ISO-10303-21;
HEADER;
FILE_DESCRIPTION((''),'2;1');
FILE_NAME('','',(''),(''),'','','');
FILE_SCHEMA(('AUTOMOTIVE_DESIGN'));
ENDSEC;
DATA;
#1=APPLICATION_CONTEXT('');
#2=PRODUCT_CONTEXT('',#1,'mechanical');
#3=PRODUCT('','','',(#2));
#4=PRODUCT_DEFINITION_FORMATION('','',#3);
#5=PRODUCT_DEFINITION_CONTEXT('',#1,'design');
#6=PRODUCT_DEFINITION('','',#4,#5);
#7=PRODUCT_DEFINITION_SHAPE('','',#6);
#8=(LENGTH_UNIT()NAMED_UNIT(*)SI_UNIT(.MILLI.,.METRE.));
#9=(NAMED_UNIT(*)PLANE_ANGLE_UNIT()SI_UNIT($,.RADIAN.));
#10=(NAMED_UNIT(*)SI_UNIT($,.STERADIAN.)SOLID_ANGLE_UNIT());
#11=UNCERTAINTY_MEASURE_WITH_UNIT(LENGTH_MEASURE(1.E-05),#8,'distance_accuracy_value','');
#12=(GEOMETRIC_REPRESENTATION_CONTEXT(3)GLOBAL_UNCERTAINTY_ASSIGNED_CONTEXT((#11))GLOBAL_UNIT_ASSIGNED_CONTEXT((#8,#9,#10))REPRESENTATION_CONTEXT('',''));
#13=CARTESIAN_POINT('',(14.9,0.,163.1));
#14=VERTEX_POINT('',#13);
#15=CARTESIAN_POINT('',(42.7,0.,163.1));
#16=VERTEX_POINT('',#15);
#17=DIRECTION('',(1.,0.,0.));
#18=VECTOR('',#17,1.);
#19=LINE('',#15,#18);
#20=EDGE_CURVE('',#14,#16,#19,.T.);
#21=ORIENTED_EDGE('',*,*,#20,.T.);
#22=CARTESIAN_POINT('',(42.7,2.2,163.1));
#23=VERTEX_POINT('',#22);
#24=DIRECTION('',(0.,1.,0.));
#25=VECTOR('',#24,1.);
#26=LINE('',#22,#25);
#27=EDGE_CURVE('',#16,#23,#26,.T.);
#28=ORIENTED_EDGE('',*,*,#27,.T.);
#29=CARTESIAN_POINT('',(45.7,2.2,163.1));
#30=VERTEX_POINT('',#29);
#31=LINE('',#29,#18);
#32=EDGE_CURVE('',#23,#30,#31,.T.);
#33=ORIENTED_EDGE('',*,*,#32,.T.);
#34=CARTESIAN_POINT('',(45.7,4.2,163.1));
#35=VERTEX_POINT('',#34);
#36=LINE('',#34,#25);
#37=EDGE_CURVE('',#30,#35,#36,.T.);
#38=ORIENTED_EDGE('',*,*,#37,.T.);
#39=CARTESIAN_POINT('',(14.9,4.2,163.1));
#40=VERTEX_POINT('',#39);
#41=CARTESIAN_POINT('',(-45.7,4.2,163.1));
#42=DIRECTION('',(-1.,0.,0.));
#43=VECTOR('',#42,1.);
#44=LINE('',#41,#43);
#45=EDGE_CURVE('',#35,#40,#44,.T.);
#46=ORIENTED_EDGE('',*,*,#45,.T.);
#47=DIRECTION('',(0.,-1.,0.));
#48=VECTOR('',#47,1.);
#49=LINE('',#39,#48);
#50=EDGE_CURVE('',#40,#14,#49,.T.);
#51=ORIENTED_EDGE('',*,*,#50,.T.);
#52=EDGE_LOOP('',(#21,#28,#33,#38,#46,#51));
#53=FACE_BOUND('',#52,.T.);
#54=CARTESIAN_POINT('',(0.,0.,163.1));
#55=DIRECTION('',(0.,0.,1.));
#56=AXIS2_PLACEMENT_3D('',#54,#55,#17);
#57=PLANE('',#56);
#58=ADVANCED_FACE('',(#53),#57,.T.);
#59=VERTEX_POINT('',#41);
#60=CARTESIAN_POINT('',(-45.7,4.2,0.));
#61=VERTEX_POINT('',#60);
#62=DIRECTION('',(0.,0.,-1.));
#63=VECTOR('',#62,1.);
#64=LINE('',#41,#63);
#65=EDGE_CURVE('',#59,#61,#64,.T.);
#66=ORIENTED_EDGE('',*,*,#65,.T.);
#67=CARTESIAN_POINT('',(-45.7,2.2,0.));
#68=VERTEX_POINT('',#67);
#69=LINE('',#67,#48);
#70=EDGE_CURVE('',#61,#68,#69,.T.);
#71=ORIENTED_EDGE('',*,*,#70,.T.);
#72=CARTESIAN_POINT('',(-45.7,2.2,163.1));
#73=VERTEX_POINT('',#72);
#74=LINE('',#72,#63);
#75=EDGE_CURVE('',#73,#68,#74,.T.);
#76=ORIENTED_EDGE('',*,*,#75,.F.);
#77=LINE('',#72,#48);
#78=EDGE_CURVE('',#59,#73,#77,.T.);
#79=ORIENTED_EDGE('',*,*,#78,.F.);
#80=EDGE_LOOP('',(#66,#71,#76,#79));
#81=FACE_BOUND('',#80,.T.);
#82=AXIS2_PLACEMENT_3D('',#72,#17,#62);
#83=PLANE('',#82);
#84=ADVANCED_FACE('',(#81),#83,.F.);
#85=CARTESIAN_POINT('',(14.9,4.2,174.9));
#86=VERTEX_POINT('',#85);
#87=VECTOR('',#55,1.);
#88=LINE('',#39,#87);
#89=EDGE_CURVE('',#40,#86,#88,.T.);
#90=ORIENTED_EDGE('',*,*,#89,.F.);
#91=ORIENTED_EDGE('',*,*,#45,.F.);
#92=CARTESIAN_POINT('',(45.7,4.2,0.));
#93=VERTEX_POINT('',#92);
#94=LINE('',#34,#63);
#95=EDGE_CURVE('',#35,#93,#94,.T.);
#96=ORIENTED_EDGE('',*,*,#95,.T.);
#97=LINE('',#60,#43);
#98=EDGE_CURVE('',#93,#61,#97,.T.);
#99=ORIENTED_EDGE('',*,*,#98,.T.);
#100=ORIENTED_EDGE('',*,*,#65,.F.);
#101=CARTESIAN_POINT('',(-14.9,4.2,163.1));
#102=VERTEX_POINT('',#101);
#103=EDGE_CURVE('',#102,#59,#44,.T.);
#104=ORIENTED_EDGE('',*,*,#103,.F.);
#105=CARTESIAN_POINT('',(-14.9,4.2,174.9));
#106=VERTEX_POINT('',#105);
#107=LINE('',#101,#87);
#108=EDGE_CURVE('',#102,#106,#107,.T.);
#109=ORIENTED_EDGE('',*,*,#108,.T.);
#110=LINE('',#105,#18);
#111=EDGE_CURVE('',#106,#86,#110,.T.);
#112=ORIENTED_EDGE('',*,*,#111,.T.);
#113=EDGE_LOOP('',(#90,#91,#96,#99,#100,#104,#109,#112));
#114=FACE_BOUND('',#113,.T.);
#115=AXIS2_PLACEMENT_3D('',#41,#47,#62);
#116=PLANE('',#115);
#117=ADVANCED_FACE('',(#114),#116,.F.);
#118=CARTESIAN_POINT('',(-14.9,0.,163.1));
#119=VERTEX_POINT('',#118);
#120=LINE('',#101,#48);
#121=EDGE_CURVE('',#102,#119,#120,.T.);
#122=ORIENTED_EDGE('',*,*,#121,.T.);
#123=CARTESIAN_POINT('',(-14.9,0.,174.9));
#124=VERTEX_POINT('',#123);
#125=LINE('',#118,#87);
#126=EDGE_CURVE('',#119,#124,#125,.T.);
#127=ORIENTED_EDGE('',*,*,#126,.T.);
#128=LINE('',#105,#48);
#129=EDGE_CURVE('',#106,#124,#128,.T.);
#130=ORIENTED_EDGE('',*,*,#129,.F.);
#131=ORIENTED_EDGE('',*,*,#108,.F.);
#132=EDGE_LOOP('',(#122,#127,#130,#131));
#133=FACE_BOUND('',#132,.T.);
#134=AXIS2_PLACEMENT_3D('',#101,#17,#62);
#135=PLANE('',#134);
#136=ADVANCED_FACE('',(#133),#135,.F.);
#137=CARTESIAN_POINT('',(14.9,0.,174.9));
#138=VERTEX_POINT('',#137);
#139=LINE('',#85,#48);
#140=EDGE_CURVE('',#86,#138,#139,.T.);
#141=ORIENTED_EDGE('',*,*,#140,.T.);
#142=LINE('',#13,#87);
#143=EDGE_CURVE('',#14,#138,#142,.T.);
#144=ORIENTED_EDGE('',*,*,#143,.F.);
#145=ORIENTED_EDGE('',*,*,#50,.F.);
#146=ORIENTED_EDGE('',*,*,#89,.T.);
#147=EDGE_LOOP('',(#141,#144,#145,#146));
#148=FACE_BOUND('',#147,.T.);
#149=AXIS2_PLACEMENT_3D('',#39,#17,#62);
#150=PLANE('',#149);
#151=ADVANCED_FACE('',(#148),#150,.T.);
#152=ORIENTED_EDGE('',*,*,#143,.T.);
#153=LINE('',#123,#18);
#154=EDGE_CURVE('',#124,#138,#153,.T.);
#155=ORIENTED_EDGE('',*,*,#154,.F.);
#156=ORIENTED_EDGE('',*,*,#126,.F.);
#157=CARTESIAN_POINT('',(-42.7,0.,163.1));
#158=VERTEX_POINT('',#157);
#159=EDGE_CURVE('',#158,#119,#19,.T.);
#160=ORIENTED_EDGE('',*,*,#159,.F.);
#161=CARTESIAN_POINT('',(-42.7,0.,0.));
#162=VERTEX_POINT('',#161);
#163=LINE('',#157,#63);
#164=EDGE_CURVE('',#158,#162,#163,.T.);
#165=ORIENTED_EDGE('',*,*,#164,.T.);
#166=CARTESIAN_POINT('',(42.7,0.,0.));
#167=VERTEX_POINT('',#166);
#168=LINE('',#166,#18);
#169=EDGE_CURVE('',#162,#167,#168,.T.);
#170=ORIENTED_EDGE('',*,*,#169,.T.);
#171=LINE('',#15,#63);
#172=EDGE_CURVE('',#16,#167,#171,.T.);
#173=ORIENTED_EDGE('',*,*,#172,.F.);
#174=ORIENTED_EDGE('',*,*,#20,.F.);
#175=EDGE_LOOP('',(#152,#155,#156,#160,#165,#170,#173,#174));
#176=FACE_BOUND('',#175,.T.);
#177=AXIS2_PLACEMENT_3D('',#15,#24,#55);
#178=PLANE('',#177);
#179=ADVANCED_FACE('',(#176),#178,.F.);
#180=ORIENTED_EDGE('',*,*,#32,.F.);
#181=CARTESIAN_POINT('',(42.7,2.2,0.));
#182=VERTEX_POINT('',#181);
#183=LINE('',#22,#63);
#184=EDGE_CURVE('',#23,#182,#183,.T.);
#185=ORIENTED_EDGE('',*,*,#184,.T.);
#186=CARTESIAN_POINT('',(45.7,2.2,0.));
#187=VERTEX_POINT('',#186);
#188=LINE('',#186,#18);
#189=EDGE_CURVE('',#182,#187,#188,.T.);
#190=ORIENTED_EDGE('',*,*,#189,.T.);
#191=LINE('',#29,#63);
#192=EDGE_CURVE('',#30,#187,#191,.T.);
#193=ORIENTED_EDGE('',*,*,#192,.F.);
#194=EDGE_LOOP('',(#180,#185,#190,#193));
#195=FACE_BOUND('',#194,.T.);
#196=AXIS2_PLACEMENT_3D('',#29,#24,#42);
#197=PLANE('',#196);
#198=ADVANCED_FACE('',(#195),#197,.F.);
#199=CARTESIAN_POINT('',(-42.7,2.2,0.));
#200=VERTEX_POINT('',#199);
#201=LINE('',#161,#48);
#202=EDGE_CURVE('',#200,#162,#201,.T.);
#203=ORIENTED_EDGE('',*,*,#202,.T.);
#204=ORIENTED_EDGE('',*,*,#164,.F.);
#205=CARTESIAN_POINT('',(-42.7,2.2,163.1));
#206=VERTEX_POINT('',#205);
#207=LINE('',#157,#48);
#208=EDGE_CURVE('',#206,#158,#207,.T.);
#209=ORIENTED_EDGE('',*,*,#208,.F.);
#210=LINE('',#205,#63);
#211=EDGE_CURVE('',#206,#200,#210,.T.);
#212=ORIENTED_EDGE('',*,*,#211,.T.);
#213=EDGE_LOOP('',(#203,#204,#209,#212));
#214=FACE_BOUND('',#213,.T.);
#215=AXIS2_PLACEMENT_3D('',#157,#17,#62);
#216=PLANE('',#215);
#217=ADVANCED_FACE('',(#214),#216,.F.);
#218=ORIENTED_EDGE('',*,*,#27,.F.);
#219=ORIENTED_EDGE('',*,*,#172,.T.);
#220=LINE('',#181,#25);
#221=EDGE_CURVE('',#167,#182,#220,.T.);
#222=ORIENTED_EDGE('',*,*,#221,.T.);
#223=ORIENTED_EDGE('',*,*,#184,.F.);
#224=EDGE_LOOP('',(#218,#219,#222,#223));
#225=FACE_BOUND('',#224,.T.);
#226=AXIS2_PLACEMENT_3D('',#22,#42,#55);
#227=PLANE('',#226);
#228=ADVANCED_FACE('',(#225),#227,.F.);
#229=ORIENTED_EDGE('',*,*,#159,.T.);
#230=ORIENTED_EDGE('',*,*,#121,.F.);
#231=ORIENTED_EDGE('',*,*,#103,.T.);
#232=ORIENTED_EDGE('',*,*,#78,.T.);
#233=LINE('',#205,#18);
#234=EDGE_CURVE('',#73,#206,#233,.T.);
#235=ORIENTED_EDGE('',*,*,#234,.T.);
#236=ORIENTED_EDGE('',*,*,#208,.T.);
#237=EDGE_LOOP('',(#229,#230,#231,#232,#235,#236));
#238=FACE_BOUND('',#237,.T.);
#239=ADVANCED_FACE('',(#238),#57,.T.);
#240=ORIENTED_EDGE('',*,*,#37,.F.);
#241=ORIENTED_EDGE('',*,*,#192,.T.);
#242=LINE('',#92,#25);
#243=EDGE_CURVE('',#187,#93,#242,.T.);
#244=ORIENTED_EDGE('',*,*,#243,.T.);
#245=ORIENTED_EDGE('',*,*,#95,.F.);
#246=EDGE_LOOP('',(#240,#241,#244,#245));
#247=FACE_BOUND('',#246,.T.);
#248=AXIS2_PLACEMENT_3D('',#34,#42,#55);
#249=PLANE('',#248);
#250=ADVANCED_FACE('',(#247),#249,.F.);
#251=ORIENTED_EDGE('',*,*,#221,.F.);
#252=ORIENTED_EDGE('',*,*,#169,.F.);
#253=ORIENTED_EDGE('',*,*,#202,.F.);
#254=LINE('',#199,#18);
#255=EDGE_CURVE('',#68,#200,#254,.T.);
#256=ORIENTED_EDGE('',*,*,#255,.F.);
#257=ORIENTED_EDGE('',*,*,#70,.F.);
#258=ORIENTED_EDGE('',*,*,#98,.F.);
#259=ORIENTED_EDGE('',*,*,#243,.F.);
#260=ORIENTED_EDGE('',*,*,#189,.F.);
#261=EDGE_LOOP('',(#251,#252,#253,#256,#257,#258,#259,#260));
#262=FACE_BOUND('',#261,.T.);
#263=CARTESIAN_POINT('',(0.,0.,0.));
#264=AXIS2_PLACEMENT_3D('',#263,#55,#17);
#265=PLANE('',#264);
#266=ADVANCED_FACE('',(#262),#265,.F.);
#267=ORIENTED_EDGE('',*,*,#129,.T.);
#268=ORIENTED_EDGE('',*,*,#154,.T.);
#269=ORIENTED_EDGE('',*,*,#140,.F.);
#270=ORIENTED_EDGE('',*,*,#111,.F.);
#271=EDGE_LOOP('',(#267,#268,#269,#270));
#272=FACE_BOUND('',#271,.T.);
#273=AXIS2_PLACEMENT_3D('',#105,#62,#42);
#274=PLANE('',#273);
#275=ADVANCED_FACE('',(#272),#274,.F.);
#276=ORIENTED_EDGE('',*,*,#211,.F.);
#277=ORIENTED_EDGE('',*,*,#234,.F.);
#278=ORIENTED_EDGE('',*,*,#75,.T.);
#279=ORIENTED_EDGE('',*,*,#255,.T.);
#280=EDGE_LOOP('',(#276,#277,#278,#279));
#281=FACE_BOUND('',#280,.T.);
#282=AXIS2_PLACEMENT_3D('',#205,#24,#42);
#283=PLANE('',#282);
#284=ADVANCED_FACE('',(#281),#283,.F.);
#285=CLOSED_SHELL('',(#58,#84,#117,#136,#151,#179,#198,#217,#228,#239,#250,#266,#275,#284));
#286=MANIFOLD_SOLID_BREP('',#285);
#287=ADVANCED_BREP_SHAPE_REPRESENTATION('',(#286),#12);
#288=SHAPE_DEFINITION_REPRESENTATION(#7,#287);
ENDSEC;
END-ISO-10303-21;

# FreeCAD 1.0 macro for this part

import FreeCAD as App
import Part
import Sketcher


def add_polygon(sketch, points):
    """Adds a closed chain of lines whose ends are joined by coincident constraints."""
    first, n = sketch.GeometryCount, len(points)
    for a, b in zip(points, points[1:] + points[:1]):
        sketch.addGeometry(Part.LineSegment(App.Vector(*a, 0), App.Vector(*b, 0)), False)
    for i in range(n):
        sketch.addConstraint(Sketcher.Constraint("Coincident", first + i, 2, first + (i + 1) % n, 1))

doc = App.newDocument("Part")
body = doc.addObject("PartDesign::Body", "Body")

sketch1 = doc.addObject("Sketcher::SketchObject", "Sketch")
body.addObject(sketch1)
sketch1.AttachmentSupport = (doc.XY_Plane, [""])
sketch1.MapMode = "FlatFace"
add_polygon(sketch1, [(-42.7, 0), (42.7, 0), (42.7, 2.2), (45.7, 2.2), (45.7, 4.2), (-45.7, 4.2), (-45.7, 2.2), (-42.7, 2.2)])
sketch1.addConstraint([
    Sketcher.Constraint("Horizontal", 0),
    Sketcher.Constraint("Vertical", 1),
    Sketcher.Constraint("Horizontal", 2),
    Sketcher.Constraint("Vertical", 3),
    Sketcher.Constraint("Horizontal", 4),
    Sketcher.Constraint("Vertical", 5),
    Sketcher.Constraint("Horizontal", 6),
    Sketcher.Constraint("Vertical", 7),
    Sketcher.Constraint("Symmetric", 0, 2, 7, 2, -1, 1),
    Sketcher.Constraint("Symmetric", 2, 2, 5, 2, -2),
    Sketcher.Constraint("DistanceX", 2, 1, 2, 2, 3.0),
    Sketcher.Constraint("DistanceY", 3, 1, 3, 2, 2.0),
    Sketcher.Constraint("DistanceX", 0, 1, 0, 2, 85.4),
    Sketcher.Constraint("DistanceY", 1, 1, 1, 2, 2.2),
])
pad1 = doc.addObject("PartDesign::Pad", "Pad")
body.addObject(pad1)
pad1.Profile = sketch1
pad1.Length = 163.1

sketch2 = doc.addObject("Sketcher::SketchObject", "Sketch001")
body.addObject(sketch2)
sketch2.AttachmentSupport = (doc.XZ_Plane, [""])
sketch2.MapMode = "FlatFace"
add_polygon(sketch2, [(-15, 175), (-15, 163), (15, 163), (15, 175)])
sketch2.addConstraint([
    Sketcher.Constraint("Vertical", 0),
    Sketcher.Constraint("Horizontal", 1),
    Sketcher.Constraint("Vertical", 2),
    Sketcher.Constraint("Horizontal", 3),
    Sketcher.Constraint("DistanceX", 1, 1, 1, 2, 29.8),
    Sketcher.Constraint("DistanceY", 0, 2, 0, 1, 11.8),
    Sketcher.Constraint("DistanceX", 0, 2, -1, 1, 14.9),
    Sketcher.Constraint("DistanceY", -1, 1, 0, 2, 163.1),
])
pad2 = doc.addObject("PartDesign::Pad", "Pad001")
body.addObject(pad2)
pad2.Profile = sketch2
pad2.Length = 4.2
pad2.Reversed = True

doc.recompute()
